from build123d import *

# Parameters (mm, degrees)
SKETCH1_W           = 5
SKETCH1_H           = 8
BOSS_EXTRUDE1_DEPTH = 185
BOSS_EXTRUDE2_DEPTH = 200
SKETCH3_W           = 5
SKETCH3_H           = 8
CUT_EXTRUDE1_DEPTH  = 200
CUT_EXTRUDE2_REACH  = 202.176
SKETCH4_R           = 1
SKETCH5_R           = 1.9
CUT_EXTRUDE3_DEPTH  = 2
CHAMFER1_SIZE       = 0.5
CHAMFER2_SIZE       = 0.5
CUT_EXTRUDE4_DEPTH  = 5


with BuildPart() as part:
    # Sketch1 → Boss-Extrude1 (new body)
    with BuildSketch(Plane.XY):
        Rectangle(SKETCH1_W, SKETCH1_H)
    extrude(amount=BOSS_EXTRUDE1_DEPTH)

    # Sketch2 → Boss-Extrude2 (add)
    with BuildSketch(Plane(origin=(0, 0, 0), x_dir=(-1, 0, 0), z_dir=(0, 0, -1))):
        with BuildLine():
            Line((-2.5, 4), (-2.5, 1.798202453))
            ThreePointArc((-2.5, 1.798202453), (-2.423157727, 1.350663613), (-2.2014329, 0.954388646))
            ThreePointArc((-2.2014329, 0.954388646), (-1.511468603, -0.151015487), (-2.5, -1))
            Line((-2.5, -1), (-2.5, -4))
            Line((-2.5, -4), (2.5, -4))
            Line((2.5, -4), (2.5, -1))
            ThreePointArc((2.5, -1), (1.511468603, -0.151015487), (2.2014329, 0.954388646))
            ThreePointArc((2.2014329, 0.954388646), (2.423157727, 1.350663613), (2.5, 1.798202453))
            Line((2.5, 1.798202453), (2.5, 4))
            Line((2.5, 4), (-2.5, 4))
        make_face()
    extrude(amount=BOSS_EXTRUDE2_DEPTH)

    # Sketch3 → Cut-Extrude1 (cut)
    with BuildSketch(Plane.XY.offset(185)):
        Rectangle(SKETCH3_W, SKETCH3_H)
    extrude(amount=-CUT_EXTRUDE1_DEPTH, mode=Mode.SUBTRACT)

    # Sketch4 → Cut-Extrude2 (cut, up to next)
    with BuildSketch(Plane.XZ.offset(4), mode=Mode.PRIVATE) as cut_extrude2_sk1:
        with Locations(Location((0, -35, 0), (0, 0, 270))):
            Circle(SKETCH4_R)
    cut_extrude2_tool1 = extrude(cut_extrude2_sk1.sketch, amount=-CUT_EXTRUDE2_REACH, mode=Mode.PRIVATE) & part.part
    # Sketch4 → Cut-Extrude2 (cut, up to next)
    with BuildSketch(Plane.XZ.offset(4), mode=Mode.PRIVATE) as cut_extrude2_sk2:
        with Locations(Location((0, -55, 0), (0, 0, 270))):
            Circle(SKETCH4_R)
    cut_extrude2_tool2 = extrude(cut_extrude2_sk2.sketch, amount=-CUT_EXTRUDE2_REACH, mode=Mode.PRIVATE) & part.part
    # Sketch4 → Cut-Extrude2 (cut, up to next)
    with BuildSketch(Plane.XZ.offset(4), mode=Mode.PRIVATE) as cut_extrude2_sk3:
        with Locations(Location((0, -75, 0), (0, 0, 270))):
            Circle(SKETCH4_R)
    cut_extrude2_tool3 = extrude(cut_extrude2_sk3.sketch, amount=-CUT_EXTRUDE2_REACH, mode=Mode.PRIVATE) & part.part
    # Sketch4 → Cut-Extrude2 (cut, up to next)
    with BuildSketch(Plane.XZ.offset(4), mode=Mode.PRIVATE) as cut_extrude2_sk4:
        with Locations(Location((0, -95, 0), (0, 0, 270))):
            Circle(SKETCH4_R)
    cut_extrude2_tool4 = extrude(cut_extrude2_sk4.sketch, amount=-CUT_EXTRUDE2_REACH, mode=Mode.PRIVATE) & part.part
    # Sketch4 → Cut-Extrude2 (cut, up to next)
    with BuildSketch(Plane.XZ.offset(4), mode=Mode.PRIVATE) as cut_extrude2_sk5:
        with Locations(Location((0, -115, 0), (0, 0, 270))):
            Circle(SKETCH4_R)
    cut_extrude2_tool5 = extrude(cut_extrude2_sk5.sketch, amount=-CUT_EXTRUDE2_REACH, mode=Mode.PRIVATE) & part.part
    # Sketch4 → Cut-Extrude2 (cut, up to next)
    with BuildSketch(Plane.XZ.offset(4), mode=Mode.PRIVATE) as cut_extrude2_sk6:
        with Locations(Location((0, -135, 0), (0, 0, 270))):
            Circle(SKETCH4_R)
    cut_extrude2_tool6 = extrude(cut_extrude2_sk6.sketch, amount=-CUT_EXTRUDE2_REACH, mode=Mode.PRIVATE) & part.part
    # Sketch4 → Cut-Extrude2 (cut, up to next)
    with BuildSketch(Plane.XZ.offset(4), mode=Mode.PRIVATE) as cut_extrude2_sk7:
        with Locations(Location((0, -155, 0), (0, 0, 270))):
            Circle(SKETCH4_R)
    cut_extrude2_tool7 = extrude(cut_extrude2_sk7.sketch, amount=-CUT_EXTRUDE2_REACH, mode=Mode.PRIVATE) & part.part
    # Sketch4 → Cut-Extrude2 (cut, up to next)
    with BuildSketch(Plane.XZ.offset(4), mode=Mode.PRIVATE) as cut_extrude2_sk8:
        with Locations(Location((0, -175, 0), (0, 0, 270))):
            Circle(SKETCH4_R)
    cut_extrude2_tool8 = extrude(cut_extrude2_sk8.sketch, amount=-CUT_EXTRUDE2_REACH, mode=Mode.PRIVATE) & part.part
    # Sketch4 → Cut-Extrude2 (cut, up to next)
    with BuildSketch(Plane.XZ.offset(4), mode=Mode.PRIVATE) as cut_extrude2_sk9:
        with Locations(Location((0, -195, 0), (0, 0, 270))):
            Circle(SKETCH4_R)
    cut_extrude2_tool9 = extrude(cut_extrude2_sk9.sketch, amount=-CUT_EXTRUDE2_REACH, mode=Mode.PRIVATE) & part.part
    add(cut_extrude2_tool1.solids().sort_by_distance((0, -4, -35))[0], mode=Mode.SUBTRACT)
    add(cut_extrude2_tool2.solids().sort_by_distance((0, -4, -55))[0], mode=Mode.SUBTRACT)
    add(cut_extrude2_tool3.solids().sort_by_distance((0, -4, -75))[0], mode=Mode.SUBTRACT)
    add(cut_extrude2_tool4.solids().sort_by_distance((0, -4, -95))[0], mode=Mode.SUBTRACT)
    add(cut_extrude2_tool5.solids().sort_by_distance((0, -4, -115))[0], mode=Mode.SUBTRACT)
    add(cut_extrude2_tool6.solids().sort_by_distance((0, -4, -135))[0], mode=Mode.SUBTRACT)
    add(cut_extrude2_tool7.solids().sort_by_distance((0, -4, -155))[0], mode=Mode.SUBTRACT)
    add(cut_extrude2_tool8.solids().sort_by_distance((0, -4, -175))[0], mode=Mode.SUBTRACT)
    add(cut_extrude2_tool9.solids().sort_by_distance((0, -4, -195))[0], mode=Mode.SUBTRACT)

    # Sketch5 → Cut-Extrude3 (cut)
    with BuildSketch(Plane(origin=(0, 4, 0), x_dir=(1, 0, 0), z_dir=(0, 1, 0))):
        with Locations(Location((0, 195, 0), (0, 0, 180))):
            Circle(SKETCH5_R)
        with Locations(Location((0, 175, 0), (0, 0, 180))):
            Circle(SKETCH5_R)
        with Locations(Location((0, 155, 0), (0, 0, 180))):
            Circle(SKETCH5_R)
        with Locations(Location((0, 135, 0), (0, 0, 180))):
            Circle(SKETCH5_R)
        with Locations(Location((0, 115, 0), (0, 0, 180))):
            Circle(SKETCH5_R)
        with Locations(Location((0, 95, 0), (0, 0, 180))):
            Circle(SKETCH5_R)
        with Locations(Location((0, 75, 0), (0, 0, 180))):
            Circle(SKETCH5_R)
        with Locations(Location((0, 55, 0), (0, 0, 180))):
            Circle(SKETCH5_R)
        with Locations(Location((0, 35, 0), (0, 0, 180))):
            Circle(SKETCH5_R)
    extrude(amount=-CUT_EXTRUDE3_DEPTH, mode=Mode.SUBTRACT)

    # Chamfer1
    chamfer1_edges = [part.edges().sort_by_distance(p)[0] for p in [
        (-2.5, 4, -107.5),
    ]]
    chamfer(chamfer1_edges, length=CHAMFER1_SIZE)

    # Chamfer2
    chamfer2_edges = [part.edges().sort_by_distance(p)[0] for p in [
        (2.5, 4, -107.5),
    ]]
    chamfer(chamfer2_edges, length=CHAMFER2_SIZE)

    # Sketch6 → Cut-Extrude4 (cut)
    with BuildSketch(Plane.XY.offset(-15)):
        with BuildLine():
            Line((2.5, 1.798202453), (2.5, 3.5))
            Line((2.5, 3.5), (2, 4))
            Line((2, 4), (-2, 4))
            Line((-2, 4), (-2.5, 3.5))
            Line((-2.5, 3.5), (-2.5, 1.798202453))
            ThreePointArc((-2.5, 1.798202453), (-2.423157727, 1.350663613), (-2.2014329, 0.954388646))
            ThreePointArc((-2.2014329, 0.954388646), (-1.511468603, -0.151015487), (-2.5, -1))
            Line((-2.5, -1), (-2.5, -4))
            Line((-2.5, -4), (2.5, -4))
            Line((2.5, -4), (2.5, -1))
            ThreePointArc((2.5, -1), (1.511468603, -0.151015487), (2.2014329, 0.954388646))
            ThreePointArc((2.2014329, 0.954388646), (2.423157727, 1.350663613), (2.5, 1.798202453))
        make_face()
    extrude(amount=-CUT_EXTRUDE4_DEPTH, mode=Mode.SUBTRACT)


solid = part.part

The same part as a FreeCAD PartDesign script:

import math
import FreeCAD as App
import Part
import Sketcher
Q = App.Units.Quantity


def edges_at(feature, points):
    """Names of the edges that pass closest to the given points."""
    edges = feature.Shape.Edges
    near = lambda p: min(range(len(edges)), key=lambda i: edges[i].distToShape(Part.Vertex(*p))[0])
    return sorted({f"Edge{near(p) + 1}" for p in points})

doc = App.newDocument("Part")
params = doc.addObject("Spreadsheet::Sheet", "Params")
for row, (alias, value) in enumerate([
    ("sketch1_width", "5 mm"),
    ("sketch1_height", "8 mm"),
    ("pad1_length", "185 mm"),
    ("sketch2_radius", "1 mm"),
    ("sketch2_width", "5 mm"),
    ("sketch2_height", "3 mm"),
    ("pad2_length", "200 mm"),
    ("sketch3_width", "5 mm"),
    ("sketch3_height", "8 mm"),
    ("pocket1_length", "200 mm"),
    ("sketch4_diameter", "2 mm"),
    ("sketch5_diameter", "2 mm"),
    ("sketch6_diameter", "2 mm"),
    ("sketch7_diameter", "2 mm"),
    ("sketch8_diameter", "2 mm"),
    ("sketch9_diameter", "2 mm"),
    ("sketch10_diameter", "2 mm"),
    ("sketch11_diameter", "2 mm"),
    ("sketch12_diameter", "2 mm"),
    ("sketch13_diameter", "3.8 mm"),
    ("pocket11_length", "2 mm"),
    ("chamfer_size", "0.5 mm"),
    ("chamfer2_size", "0.5 mm"),
    ("sketch14_radius", "1 mm"),
    ("sketch14_width", "4 mm"),
    ("sketch14_width2", "5 mm"),
    ("sketch14_height", "3 mm"),
    ("pocket12_length", "5 mm"),
], start=1):
    params.set(f"A{row}", alias)
    params.set(f"B{row}", "=" + value)
    params.setAlias(f"B{row}", alias)

body = doc.addObject("PartDesign::Body", "Body")

# Sketch on XY plane
sketch1 = body.newObject("Sketcher::SketchObject", "Sketch")
sketch1.AttachmentSupport = (doc.getObject("XY_Plane"), [""])
sketch1.MapMode = "FlatFace"
sketch1.addGeometry(Part.LineSegment(App.Vector(-2, 4, 0), App.Vector(-2, -4, 0)), False)
sketch1.addGeometry(Part.LineSegment(App.Vector(-2, -4, 0), App.Vector(2, -4, 0)), False)
sketch1.addGeometry(Part.LineSegment(App.Vector(2, -4, 0), App.Vector(2, 4, 0)), False)
sketch1.addGeometry(Part.LineSegment(App.Vector(2, 4, 0), App.Vector(-2, 4, 0)), False)
sketch1.addConstraint(Sketcher.Constraint("Coincident", 0, 2, 1, 1))
sketch1.addConstraint(Sketcher.Constraint("Coincident", 1, 2, 2, 1))
sketch1.addConstraint(Sketcher.Constraint("Coincident", 2, 2, 3, 1))
sketch1.addConstraint(Sketcher.Constraint("Coincident", 3, 2, 0, 1))
sketch1.addConstraint(Sketcher.Constraint("Vertical", 0))
sketch1.addConstraint(Sketcher.Constraint("Horizontal", 1))
sketch1.addConstraint(Sketcher.Constraint("Vertical", 2))
sketch1.addConstraint(Sketcher.Constraint("Horizontal", 3))
sketch1.addConstraint(Sketcher.Constraint("Symmetric", 0, 2, 2, 2, -1, 1))
sketch1.addConstraint(Sketcher.Constraint("DistanceX", 1, 1, 1, 2, Q("5 mm")))
sketch1.addConstraint(Sketcher.Constraint("DistanceY", 0, 2, 0, 1, Q("8 mm")))
sketch1.setExpression("Constraints[9]", "Params.sketch1_width")
sketch1.setExpression("Constraints[10]", "Params.sketch1_height")
pad1 = body.newObject("PartDesign::Pad", "Pad")
pad1.Profile = sketch1
pad1.setExpression("Length", "Params.pad1_length")

# Sketch on XY plane
sketch2 = body.newObject("Sketcher::SketchObject", "Sketch001")
sketch2.AttachmentSupport = (doc.getObject("XY_Plane"), [""])
sketch2.MapMode = "FlatFace"
sketch2.addGeometry(Part.LineSegment(App.Vector(2.5, 4, 0), App.Vector(2.5, 1.8, 0)), False)
sketch2.addGeometry(Part.ArcOfCircle(Part.Circle(App.Vector(1.2, 1.8, 0), App.Vector(0, 0, 1), 1.3), math.radians(-39), math.radians(0)), False)
sketch2.addGeometry(Part.ArcOfCircle(Part.Circle(App.Vector(2.5, 0, 0), App.Vector(0, 0, 1), 1), math.radians(107), math.radians(270)), False)
sketch2.addGeometry(Part.LineSegment(App.Vector(2.5, -1, 0), App.Vector(2.5, -4, 0)), False)
sketch2.addGeometry(Part.LineSegment(App.Vector(2.5, -4, 0), App.Vector(-2.5, -4, 0)), False)
sketch2.addGeometry(Part.LineSegment(App.Vector(-2.5, -4, 0), App.Vector(-2.5, -1, 0)), False)
sketch2.addGeometry(Part.ArcOfCircle(Part.Circle(App.Vector(-2.5, 0, 0), App.Vector(0, 0, 1), 1), math.radians(-90), math.radians(73)), False)
sketch2.addGeometry(Part.ArcOfCircle(Part.Circle(App.Vector(-1.2, 1.8, 0), App.Vector(0, 0, 1), 1.3), math.radians(-180), math.radians(-141)), False)
sketch2.addGeometry(Part.LineSegment(App.Vector(-2.5, 1.8, 0), App.Vector(-2.5, 4, 0)), False)
sketch2.addGeometry(Part.LineSegment(App.Vector(-2.5, 4, 0), App.Vector(2.5, 4, 0)), False)
sketch2.addConstraint(Sketcher.Constraint("Tangent", 0, 2, 1, 2))
sketch2.addConstraint(Sketcher.Constraint("Coincident", 1, 1, 2, 1))
sketch2.addConstraint(Sketcher.Constraint("Coincident", 2, 2, 3, 1))
sketch2.addConstraint(Sketcher.Constraint("Coincident", 3, 2, 4, 1))
sketch2.addConstraint(Sketcher.Constraint("Coincident", 4, 2, 5, 1))
sketch2.addConstraint(Sketcher.Constraint("Coincident", 5, 2, 6, 1))
sketch2.addConstraint(Sketcher.Constraint("Coincident", 6, 2, 7, 2))
sketch2.addConstraint(Sketcher.Constraint("Tangent", 7, 1, 8, 1))
sketch2.addConstraint(Sketcher.Constraint("Coincident", 8, 2, 9, 1))
sketch2.addConstraint(Sketcher.Constraint("Coincident", 9, 2, 0, 1))
sketch2.addConstraint(Sketcher.Constraint("Vertical", 0))
sketch2.addConstraint(Sketcher.Constraint("Vertical", 3))
sketch2.addConstraint(Sketcher.Constraint("Horizontal", 4))
sketch2.addConstraint(Sketcher.Constraint("Vertical", 5))
sketch2.addConstraint(Sketcher.Constraint("Vertical", 8))
sketch2.addConstraint(Sketcher.Constraint("Horizontal", 9))
sketch2.addConstraint(Sketcher.Constraint("Equal", 2, 6))
sketch2.addConstraint(Sketcher.Constraint("Equal", 1, 7))
sketch2.addConstraint(Sketcher.Constraint("Symmetric", 2, 3, 6, 3, -1, 1))
sketch2.addConstraint(Sketcher.Constraint("Symmetric", 3, 2, 8, 2, -1, 1))
sketch2.addConstraint(Sketcher.Constraint("Symmetric", 1, 3, 7, 3, -2))
sketch2.addConstraint(Sketcher.Constraint("Symmetric", 2, 2, 5, 2, -2))
sketch2.addConstraint(Sketcher.Constraint("Vertical", 2, 3, 0, 2))
sketch2.addConstraint(Sketcher.Constraint("Radius", 2, Q("1 mm")))
sketch2.addConstraint(Sketcher.Constraint("DistanceX", 4, 2, 4, 1, Q("5 mm")))
sketch2.addConstraint(Sketcher.Constraint("DistanceY", 3, 2, 3, 1, Q("3 mm")))
sketch2.addConstraint(Sketcher.Constraint("Radius", 1, Q("1.341682 mm")))
sketch2.addConstraint(Sketcher.Constraint("DistanceY", 0, 2, 0, 1, Q("2.201798 mm")))
sketch2.setExpression("Constraints[23]", "Params.sketch2_radius")
sketch2.setExpression("Constraints[24]", "Params.sketch2_width")
sketch2.setExpression("Constraints[25]", "Params.sketch2_height")
pad2 = body.newObject("PartDesign::Pad", "Pad001")
pad2.Profile = sketch2
pad2.setExpression("Length", "Params.pad2_length")
pad2.Reversed = True

# Sketch on XY plane
sketch3 = body.newObject("Sketcher::SketchObject", "Sketch002")
sketch3.AttachmentSupport = (doc.getObject("XY_Plane"), [""])
sketch3.MapMode = "FlatFace"
sketch3.AttachmentOffset = App.Placement(App.Vector(0, 0, 185), App.Rotation())
sketch3.addGeometry(Part.LineSegment(App.Vector(-2, 4, 0), App.Vector(-2, -4, 0)), False)
sketch3.addGeometry(Part.LineSegment(App.Vector(-2, -4, 0), App.Vector(2, -4, 0)), False)
sketch3.addGeometry(Part.LineSegment(App.Vector(2, -4, 0), App.Vector(2, 4, 0)), False)
sketch3.addGeometry(Part.LineSegment(App.Vector(2, 4, 0), App.Vector(-2, 4, 0)), False)
sketch3.addConstraint(Sketcher.Constraint("Coincident", 0, 2, 1, 1))
sketch3.addConstraint(Sketcher.Constraint("Coincident", 1, 2, 2, 1))
sketch3.addConstraint(Sketcher.Constraint("Coincident", 2, 2, 3, 1))
sketch3.addConstraint(Sketcher.Constraint("Coincident", 3, 2, 0, 1))
sketch3.addConstraint(Sketcher.Constraint("Vertical", 0))
sketch3.addConstraint(Sketcher.Constraint("Horizontal", 1))
sketch3.addConstraint(Sketcher.Constraint("Vertical", 2))
sketch3.addConstraint(Sketcher.Constraint("Horizontal", 3))
sketch3.addConstraint(Sketcher.Constraint("Symmetric", 0, 2, 2, 2, -1, 1))
sketch3.addConstraint(Sketcher.Constraint("DistanceX", 1, 1, 1, 2, Q("5 mm")))
sketch3.addConstraint(Sketcher.Constraint("DistanceY", 0, 2, 0, 1, Q("8 mm")))
sketch3.setExpression("Constraints[9]", "Params.sketch3_width")
sketch3.setExpression("Constraints[10]", "Params.sketch3_height")
pocket1 = body.newObject("PartDesign::Pocket", "Pocket")
pocket1.Profile = sketch3
pocket1.setExpression("Length", "Params.pocket1_length")

# Sketch on XZ plane
sketch4 = body.newObject("Sketcher::SketchObject", "Sketch003")
sketch4.AttachmentSupport = (doc.getObject("XZ_Plane"), [""])
sketch4.MapMode = "FlatFace"
sketch4.AttachmentOffset = App.Placement(App.Vector(0, 0, 4), App.Rotation())
sketch4.addGeometry(Part.Circle(App.Vector(0, -35, 0), App.Vector(0, 0, 1), 1), False)
sketch4.addConstraint(Sketcher.Constraint("PointOnObject", 0, 3, -2))
sketch4.addConstraint(Sketcher.Constraint("Diameter", 0, Q("2 mm")))
sketch4.addConstraint(Sketcher.Constraint("DistanceY", 0, 3, -1, 1, Q("35 mm")))
sketch4.setExpression("Constraints[1]", "Params.sketch4_diameter")
pocket2 = body.newObject("PartDesign::Pocket", "Pocket001")
pocket2.Profile = sketch4
pocket2.Type = "UpToFirst"

# Sketch on XZ plane
sketch5 = body.newObject("Sketcher::SketchObject", "Sketch004")
sketch5.AttachmentSupport = (doc.getObject("XZ_Plane"), [""])
sketch5.MapMode = "FlatFace"
sketch5.AttachmentOffset = App.Placement(App.Vector(0, 0, 4), App.Rotation())
sketch5.addGeometry(Part.Circle(App.Vector(0, -55, 0), App.Vector(0, 0, 1), 1), False)
sketch5.addConstraint(Sketcher.Constraint("PointOnObject", 0, 3, -2))
sketch5.addConstraint(Sketcher.Constraint("Diameter", 0, Q("2 mm")))
sketch5.addConstraint(Sketcher.Constraint("DistanceY", 0, 3, -1, 1, Q("55 mm")))
sketch5.setExpression("Constraints[1]", "Params.sketch5_diameter")
pocket3 = body.newObject("PartDesign::Pocket", "Pocket002")
pocket3.Profile = sketch5
pocket3.Type = "UpToFirst"

# Sketch on XZ plane
sketch6 = body.newObject("Sketcher::SketchObject", "Sketch005")
sketch6.AttachmentSupport = (doc.getObject("XZ_Plane"), [""])
sketch6.MapMode = "FlatFace"
sketch6.AttachmentOffset = App.Placement(App.Vector(0, 0, 4), App.Rotation())
sketch6.addGeometry(Part.Circle(App.Vector(0, -75, 0), App.Vector(0, 0, 1), 1), False)
sketch6.addConstraint(Sketcher.Constraint("PointOnObject", 0, 3, -2))
sketch6.addConstraint(Sketcher.Constraint("Diameter", 0, Q("2 mm")))
sketch6.addConstraint(Sketcher.Constraint("DistanceY", 0, 3, -1, 1, Q("75 mm")))
sketch6.setExpression("Constraints[1]", "Params.sketch6_diameter")
pocket4 = body.newObject("PartDesign::Pocket", "Pocket003")
pocket4.Profile = sketch6
pocket4.Type = "UpToFirst"

# Sketch on XZ plane
sketch7 = body.newObject("Sketcher::SketchObject", "Sketch006")
sketch7.AttachmentSupport = (doc.getObject("XZ_Plane"), [""])
sketch7.MapMode = "FlatFace"
sketch7.AttachmentOffset = App.Placement(App.Vector(0, 0, 4), App.Rotation())
sketch7.addGeometry(Part.Circle(App.Vector(0, -95, 0), App.Vector(0, 0, 1), 1), False)
sketch7.addConstraint(Sketcher.Constraint("PointOnObject", 0, 3, -2))
sketch7.addConstraint(Sketcher.Constraint("Diameter", 0, Q("2 mm")))
sketch7.addConstraint(Sketcher.Constraint("DistanceY", 0, 3, -1, 1, Q("95 mm")))
sketch7.setExpression("Constraints[1]", "Params.sketch7_diameter")
pocket5 = body.newObject("PartDesign::Pocket", "Pocket004")
pocket5.Profile = sketch7
pocket5.Type = "UpToFirst"

# Sketch on XZ plane
sketch8 = body.newObject("Sketcher::SketchObject", "Sketch007")
sketch8.AttachmentSupport = (doc.getObject("XZ_Plane"), [""])
sketch8.MapMode = "FlatFace"
sketch8.AttachmentOffset = App.Placement(App.Vector(0, 0, 4), App.Rotation())
sketch8.addGeometry(Part.Circle(App.Vector(0, -115, 0), App.Vector(0, 0, 1), 1), False)
sketch8.addConstraint(Sketcher.Constraint("PointOnObject", 0, 3, -2))
sketch8.addConstraint(Sketcher.Constraint("Diameter", 0, Q("2 mm")))
sketch8.addConstraint(Sketcher.Constraint("DistanceY", 0, 3, -1, 1, Q("115 mm")))
sketch8.setExpression("Constraints[1]", "Params.sketch8_diameter")
pocket6 = body.newObject("PartDesign::Pocket", "Pocket005")
pocket6.Profile = sketch8
pocket6.Type = "UpToFirst"

# Sketch on XZ plane
sketch9 = body.newObject("Sketcher::SketchObject", "Sketch008")
sketch9.AttachmentSupport = (doc.getObject("XZ_Plane"), [""])
sketch9.MapMode = "FlatFace"
sketch9.AttachmentOffset = App.Placement(App.Vector(0, 0, 4), App.Rotation())
sketch9.addGeometry(Part.Circle(App.Vector(0, -135, 0), App.Vector(0, 0, 1), 1), False)
sketch9.addConstraint(Sketcher.Constraint("PointOnObject", 0, 3, -2))
sketch9.addConstraint(Sketcher.Constraint("Diameter", 0, Q("2 mm")))
sketch9.addConstraint(Sketcher.Constraint("DistanceY", 0, 3, -1, 1, Q("135 mm")))
sketch9.setExpression("Constraints[1]", "Params.sketch9_diameter")
pocket7 = body.newObject("PartDesign::Pocket", "Pocket006")
pocket7.Profile = sketch9
pocket7.Type = "UpToFirst"

# Sketch on XZ plane
sketch10 = body.newObject("Sketcher::SketchObject", "Sketch009")
sketch10.AttachmentSupport = (doc.getObject("XZ_Plane"), [""])
sketch10.MapMode = "FlatFace"
sketch10.AttachmentOffset = App.Placement(App.Vector(0, 0, 4), App.Rotation())
sketch10.addGeometry(Part.Circle(App.Vector(0, -155, 0), App.Vector(0, 0, 1), 1), False)
sketch10.addConstraint(Sketcher.Constraint("PointOnObject", 0, 3, -2))
sketch10.addConstraint(Sketcher.Constraint("Diameter", 0, Q("2 mm")))
sketch10.addConstraint(Sketcher.Constraint("DistanceY", 0, 3, -1, 1, Q("155 mm")))
sketch10.setExpression("Constraints[1]", "Params.sketch10_diameter")
pocket8 = body.newObject("PartDesign::Pocket", "Pocket007")
pocket8.Profile = sketch10
pocket8.Type = "UpToFirst"

# Sketch on XZ plane
sketch11 = body.newObject("Sketcher::SketchObject", "Sketch010")
sketch11.AttachmentSupport = (doc.getObject("XZ_Plane"), [""])
sketch11.MapMode = "FlatFace"
sketch11.AttachmentOffset = App.Placement(App.Vector(0, 0, 4), App.Rotation())
sketch11.addGeometry(Part.Circle(App.Vector(0, -175, 0), App.Vector(0, 0, 1), 1), False)
sketch11.addConstraint(Sketcher.Constraint("PointOnObject", 0, 3, -2))
sketch11.addConstraint(Sketcher.Constraint("Diameter", 0, Q("2 mm")))
sketch11.addConstraint(Sketcher.Constraint("DistanceY", 0, 3, -1, 1, Q("175 mm")))
sketch11.setExpression("Constraints[1]", "Params.sketch11_diameter")
pocket9 = body.newObject("PartDesign::Pocket", "Pocket008")
pocket9.Profile = sketch11
pocket9.Type = "UpToFirst"

# Sketch on XZ plane
sketch12 = body.newObject("Sketcher::SketchObject", "Sketch011")
sketch12.AttachmentSupport = (doc.getObject("XZ_Plane"), [""])
sketch12.MapMode = "FlatFace"
sketch12.AttachmentOffset = App.Placement(App.Vector(0, 0, 4), App.Rotation())
sketch12.addGeometry(Part.Circle(App.Vector(0, -195, 0), App.Vector(0, 0, 1), 1), False)
sketch12.addConstraint(Sketcher.Constraint("PointOnObject", 0, 3, -2))
sketch12.addConstraint(Sketcher.Constraint("Diameter", 0, Q("2 mm")))
sketch12.addConstraint(Sketcher.Constraint("DistanceY", 0, 3, -1, 1, Q("195 mm")))
sketch12.setExpression("Constraints[1]", "Params.sketch12_diameter")
pocket10 = body.newObject("PartDesign::Pocket", "Pocket009")
pocket10.Profile = sketch12
pocket10.Type = "UpToFirst"

# Sketch on XZ plane
sketch13 = body.newObject("Sketcher::SketchObject", "Sketch012")
sketch13.AttachmentSupport = (doc.getObject("XZ_Plane"), [""])
sketch13.MapMode = "FlatFace"
sketch13.AttachmentOffset = App.Placement(App.Vector(0, 0, -4), App.Rotation())
sketch13.addGeometry(Part.Circle(App.Vector(0, -195, 0), App.Vector(0, 0, 1), 1.9), False)
sketch13.addGeometry(Part.Circle(App.Vector(0, -175, 0), App.Vector(0, 0, 1), 1.9), False)
sketch13.addGeometry(Part.Circle(App.Vector(0, -155, 0), App.Vector(0, 0, 1), 1.9), False)
sketch13.addGeometry(Part.Circle(App.Vector(0, -135, 0), App.Vector(0, 0, 1), 1.9), False)
sketch13.addGeometry(Part.Circle(App.Vector(0, -115, 0), App.Vector(0, 0, 1), 1.9), False)
sketch13.addGeometry(Part.Circle(App.Vector(0, -95, 0), App.Vector(0, 0, 1), 1.9), False)
sketch13.addGeometry(Part.Circle(App.Vector(0, -75, 0), App.Vector(0, 0, 1), 1.9), False)
sketch13.addGeometry(Part.Circle(App.Vector(0, -55, 0), App.Vector(0, 0, 1), 1.9), False)
sketch13.addGeometry(Part.Circle(App.Vector(0, -35, 0), App.Vector(0, 0, 1), 1.9), False)
sketch13.addConstraint(Sketcher.Constraint("Equal", 0, 1))
sketch13.addConstraint(Sketcher.Constraint("Equal", 1, 2))
sketch13.addConstraint(Sketcher.Constraint("Equal", 2, 3))
sketch13.addConstraint(Sketcher.Constraint("Equal", 3, 4))
sketch13.addConstraint(Sketcher.Constraint("Equal", 4, 5))
sketch13.addConstraint(Sketcher.Constraint("Equal", 5, 6))
sketch13.addConstraint(Sketcher.Constraint("Equal", 6, 7))
sketch13.addConstraint(Sketcher.Constraint("Equal", 7, 8))
sketch13.addConstraint(Sketcher.Constraint("PointOnObject", 0, 3, -2))
sketch13.addConstraint(Sketcher.Constraint("PointOnObject", 1, 3, -2))
sketch13.addConstraint(Sketcher.Constraint("PointOnObject", 2, 3, -2))
sketch13.addConstraint(Sketcher.Constraint("PointOnObject", 3, 3, -2))
sketch13.addConstraint(Sketcher.Constraint("PointOnObject", 4, 3, -2))
sketch13.addConstraint(Sketcher.Constraint("PointOnObject", 5, 3, -2))
sketch13.addConstraint(Sketcher.Constraint("PointOnObject", 6, 3, -2))
sketch13.addConstraint(Sketcher.Constraint("PointOnObject", 7, 3, -2))
sketch13.addConstraint(Sketcher.Constraint("PointOnObject", 8, 3, -2))
sketch13.addConstraint(Sketcher.Constraint("Diameter", 0, Q("3.8 mm")))
sketch13.addConstraint(Sketcher.Constraint("DistanceY", 0, 3, -1, 1, Q("195 mm")))
sketch13.addConstraint(Sketcher.Constraint("DistanceY", 1, 3, -1, 1, Q("175 mm")))
sketch13.addConstraint(Sketcher.Constraint("DistanceY", 2, 3, -1, 1, Q("155 mm")))
sketch13.addConstraint(Sketcher.Constraint("DistanceY", 3, 3, -1, 1, Q("135 mm")))
sketch13.addConstraint(Sketcher.Constraint("DistanceY", 4, 3, -1, 1, Q("115 mm")))
sketch13.addConstraint(Sketcher.Constraint("DistanceY", 5, 3, -1, 1, Q("95 mm")))
sketch13.addConstraint(Sketcher.Constraint("DistanceY", 6, 3, -1, 1, Q("75 mm")))
sketch13.addConstraint(Sketcher.Constraint("DistanceY", 7, 3, -1, 1, Q("55 mm")))
sketch13.addConstraint(Sketcher.Constraint("DistanceY", 8, 3, -1, 1, Q("35 mm")))
sketch13.setExpression("Constraints[17]", "Params.sketch13_diameter")
pocket11 = body.newObject("PartDesign::Pocket", "Pocket010")
pocket11.Profile = sketch13
pocket11.setExpression("Length", "Params.pocket11_length")
pocket11.Reversed = True
doc.recompute()

chamfer = body.newObject("PartDesign::Chamfer", "Chamfer")
chamfer.Base = (pocket11, edges_at(pocket11, [(-2.5, 4, -107.5)]))
chamfer.setExpression("Size", "Params.chamfer_size")
doc.recompute()

chamfer2 = body.newObject("PartDesign::Chamfer", "Chamfer001")
chamfer2.Base = (chamfer, edges_at(chamfer, [(2.5, 4, -107.5)]))
chamfer2.setExpression("Size", "Params.chamfer2_size")

# Sketch on XY plane
sketch14 = body.newObject("Sketcher::SketchObject", "Sketch013")
sketch14.AttachmentSupport = (doc.getObject("XY_Plane"), [""])
sketch14.MapMode = "FlatFace"
sketch14.AttachmentOffset = App.Placement(App.Vector(0, 0, -15), App.Rotation())
sketch14.addGeometry(Part.LineSegment(App.Vector(2.5, 1.8, 0), App.Vector(2.5, 3.5, 0)), False)
sketch14.addGeometry(Part.LineSegment(App.Vector(2.5, 3.5, 0), App.Vector(2, 4, 0)), False)
sketch14.addGeometry(Part.LineSegment(App.Vector(2, 4, 0), App.Vector(-2, 4, 0)), False)
sketch14.addGeometry(Part.LineSegment(App.Vector(-2, 4, 0), App.Vector(-2.5, 3.5, 0)), False)
sketch14.addGeometry(Part.LineSegment(App.Vector(-2.5, 3.5, 0), App.Vector(-2.5, 1.8, 0)), False)
sketch14.addGeometry(Part.ArcOfCircle(Part.Circle(App.Vector(-1.2, 1.8, 0), App.Vector(0, 0, 1), 1.3), math.radians(-180), math.radians(-141)), False)
sketch14.addGeometry(Part.ArcOfCircle(Part.Circle(App.Vector(-2.5, 0, 0), App.Vector(0, 0, 1), 1), math.radians(-90), math.radians(73)), False)
sketch14.addGeometry(Part.LineSegment(App.Vector(-2.5, -1, 0), App.Vector(-2.5, -4, 0)), False)
sketch14.addGeometry(Part.LineSegment(App.Vector(-2.5, -4, 0), App.Vector(2.5, -4, 0)), False)
sketch14.addGeometry(Part.LineSegment(App.Vector(2.5, -4, 0), App.Vector(2.5, -1, 0)), False)
sketch14.addGeometry(Part.ArcOfCircle(Part.Circle(App.Vector(2.5, 0, 0), App.Vector(0, 0, 1), 1), math.radians(107), math.radians(270)), False)
sketch14.addGeometry(Part.ArcOfCircle(Part.Circle(App.Vector(1.2, 1.8, 0), App.Vector(0, 0, 1), 1.3), math.radians(-39), math.radians(0)), False)
sketch14.addConstraint(Sketcher.Constraint("Coincident", 0, 2, 1, 1))
sketch14.addConstraint(Sketcher.Constraint("Coincident", 1, 2, 2, 1))
sketch14.addConstraint(Sketcher.Constraint("Coincident", 2, 2, 3, 1))
sketch14.addConstraint(Sketcher.Constraint("Coincident", 3, 2, 4, 1))
sketch14.addConstraint(Sketcher.Constraint("Tangent", 4, 2, 5, 1))
sketch14.addConstraint(Sketcher.Constraint("Coincident", 5, 2, 6, 2))
sketch14.addConstraint(Sketcher.Constraint("Coincident", 6, 1, 7, 1))
sketch14.addConstraint(Sketcher.Constraint("Coincident", 7, 2, 8, 1))
sketch14.addConstraint(Sketcher.Constraint("Coincident", 8, 2, 9, 1))
sketch14.addConstraint(Sketcher.Constraint("Coincident", 9, 2, 10, 2))
sketch14.addConstraint(Sketcher.Constraint("Coincident", 10, 1, 11, 1))
sketch14.addConstraint(Sketcher.Constraint("Tangent", 11, 2, 0, 1))
sketch14.addConstraint(Sketcher.Constraint("Vertical", 0))
sketch14.addConstraint(Sketcher.Constraint("Horizontal", 2))
sketch14.addConstraint(Sketcher.Constraint("Vertical", 4))
sketch14.addConstraint(Sketcher.Constraint("Vertical", 7))
sketch14.addConstraint(Sketcher.Constraint("Horizontal", 8))
sketch14.addConstraint(Sketcher.Constraint("Vertical", 9))
sketch14.addConstraint(Sketcher.Constraint("Equal", 6, 10))
sketch14.addConstraint(Sketcher.Constraint("Equal", 5, 11))
sketch14.addConstraint(Sketcher.Constraint("Symmetric", 6, 3, 10, 3, -1, 1))
sketch14.addConstraint(Sketcher.Constraint("Symmetric", 5, 3, 11, 3, -2))
sketch14.addConstraint(Sketcher.Constraint("Symmetric", 6, 1, 9, 2, -2))
sketch14.addConstraint(Sketcher.Constraint("Perpendicular", 1, 3))
sketch14.addConstraint(Sketcher.Constraint("Horizontal", 0, 2, 3, 2))
sketch14.addConstraint(Sketcher.Constraint("Vertical", 10, 3, 0, 2))
sketch14.addConstraint(Sketcher.Constraint("Vertical", 4, 2, 6, 1))
sketch14.addConstraint(Sketcher.Constraint("Equal", 1, 3))
sketch14.addConstraint(Sketcher.Constraint("Radius", 6, Q("1 mm")))
sketch14.addConstraint(Sketcher.Constraint("DistanceX", 2, 2, 2, 1, Q("4 mm")))
sketch14.addConstraint(Sketcher.Constraint("DistanceX", 8, 1, 8, 2, Q("5 mm")))
sketch14.addConstraint(Sketcher.Constraint("DistanceY", 7, 2, 7, 1, Q("3 mm")))
sketch14.addConstraint(Sketcher.Constraint("DistanceY", -1, 1, 1, 2, Q("4 mm")))
sketch14.addConstraint(Sketcher.Constraint("Radius", 5, Q("1.341682 mm")))
sketch14.addConstraint(Sketcher.Constraint("DistanceY", 0, 1, 0, 2, Q("1.701798 mm")))
sketch14.setExpression("Constraints[28]", "Params.sketch14_radius")
sketch14.setExpression("Constraints[29]", "Params.sketch14_width")
sketch14.setExpression("Constraints[30]", "Params.sketch14_width2")
sketch14.setExpression("Constraints[31]", "Params.sketch14_height")
pocket12 = body.newObject("PartDesign::Pocket", "Pocket011")
pocket12.Profile = sketch14
pocket12.setExpression("Length", "Params.pocket12_length")

doc.recompute()
